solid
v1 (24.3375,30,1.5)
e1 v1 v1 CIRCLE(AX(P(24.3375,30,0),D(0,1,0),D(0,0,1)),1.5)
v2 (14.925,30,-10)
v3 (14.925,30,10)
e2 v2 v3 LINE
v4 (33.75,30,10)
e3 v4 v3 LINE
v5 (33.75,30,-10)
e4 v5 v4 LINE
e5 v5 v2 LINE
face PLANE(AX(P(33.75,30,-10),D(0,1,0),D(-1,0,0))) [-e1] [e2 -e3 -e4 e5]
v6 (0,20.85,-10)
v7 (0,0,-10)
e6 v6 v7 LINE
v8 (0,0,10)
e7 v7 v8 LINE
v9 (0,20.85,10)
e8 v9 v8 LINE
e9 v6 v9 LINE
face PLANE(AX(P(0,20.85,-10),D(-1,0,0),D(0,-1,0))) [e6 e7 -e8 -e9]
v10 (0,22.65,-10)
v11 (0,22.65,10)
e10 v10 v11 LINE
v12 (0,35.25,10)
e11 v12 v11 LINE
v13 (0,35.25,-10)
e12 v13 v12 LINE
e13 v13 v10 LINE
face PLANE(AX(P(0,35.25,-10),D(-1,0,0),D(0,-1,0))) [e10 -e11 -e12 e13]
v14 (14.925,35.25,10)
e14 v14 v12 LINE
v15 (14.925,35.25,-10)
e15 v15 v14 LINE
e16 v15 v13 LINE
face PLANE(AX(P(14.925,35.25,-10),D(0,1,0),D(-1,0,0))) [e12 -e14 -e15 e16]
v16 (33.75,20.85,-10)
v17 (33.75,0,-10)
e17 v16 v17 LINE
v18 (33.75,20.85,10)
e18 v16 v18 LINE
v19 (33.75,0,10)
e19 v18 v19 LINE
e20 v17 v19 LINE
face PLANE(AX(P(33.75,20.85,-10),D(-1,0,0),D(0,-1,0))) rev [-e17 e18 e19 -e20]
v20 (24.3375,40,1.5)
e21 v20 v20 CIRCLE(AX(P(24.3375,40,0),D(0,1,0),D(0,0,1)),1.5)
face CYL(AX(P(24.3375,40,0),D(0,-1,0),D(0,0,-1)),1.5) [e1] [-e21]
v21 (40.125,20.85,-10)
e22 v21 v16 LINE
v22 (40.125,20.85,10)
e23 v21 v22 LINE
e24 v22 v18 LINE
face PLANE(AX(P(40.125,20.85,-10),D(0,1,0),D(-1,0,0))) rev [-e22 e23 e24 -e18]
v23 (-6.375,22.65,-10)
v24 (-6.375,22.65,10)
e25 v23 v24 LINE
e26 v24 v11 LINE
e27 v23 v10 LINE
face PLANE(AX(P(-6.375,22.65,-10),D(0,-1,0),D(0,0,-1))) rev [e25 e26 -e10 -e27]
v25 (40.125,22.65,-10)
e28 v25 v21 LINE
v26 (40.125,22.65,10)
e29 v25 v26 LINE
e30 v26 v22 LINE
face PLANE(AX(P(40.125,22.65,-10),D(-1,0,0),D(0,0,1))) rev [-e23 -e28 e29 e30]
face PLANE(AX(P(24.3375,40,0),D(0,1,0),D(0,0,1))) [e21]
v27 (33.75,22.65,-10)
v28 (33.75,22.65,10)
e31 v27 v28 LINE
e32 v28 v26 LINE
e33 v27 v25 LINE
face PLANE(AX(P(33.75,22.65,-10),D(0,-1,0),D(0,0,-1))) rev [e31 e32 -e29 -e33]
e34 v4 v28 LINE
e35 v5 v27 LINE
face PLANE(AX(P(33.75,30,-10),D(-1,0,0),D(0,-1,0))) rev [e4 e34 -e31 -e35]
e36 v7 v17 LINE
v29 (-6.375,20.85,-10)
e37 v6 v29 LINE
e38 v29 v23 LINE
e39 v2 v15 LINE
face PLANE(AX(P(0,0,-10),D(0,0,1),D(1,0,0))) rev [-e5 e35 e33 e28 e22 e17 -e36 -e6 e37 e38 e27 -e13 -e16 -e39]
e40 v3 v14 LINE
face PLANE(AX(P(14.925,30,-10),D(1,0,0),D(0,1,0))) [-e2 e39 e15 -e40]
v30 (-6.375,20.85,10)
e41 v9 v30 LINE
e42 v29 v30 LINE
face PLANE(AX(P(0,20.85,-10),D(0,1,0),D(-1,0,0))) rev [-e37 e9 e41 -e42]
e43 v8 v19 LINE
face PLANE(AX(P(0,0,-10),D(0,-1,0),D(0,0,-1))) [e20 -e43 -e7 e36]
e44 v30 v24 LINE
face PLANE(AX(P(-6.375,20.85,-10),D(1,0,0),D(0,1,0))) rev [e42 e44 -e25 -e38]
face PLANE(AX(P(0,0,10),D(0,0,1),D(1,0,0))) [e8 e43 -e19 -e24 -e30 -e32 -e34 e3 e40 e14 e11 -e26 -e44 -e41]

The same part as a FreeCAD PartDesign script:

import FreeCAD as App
import Part
import Sketcher
from FreeCAD import Vector

doc = App.newDocument("Part")
params = doc.addObject("Spreadsheet::Sheet", "Params")
for row, (alias, value) in enumerate([
    ("sketch1_height", "1.8 mm"),
    ("sketch1_height2", "12.6 mm"),
    ("sketch1_width", "33.75 mm"),
    ("sketch1_height3", "20.85 mm"),
    ("pad1_length", "10 mm"),
    ("pad1_length2", "10 mm"),
    ("sketch2_diameter", "3 mm"),
    ("pad2_length", "10 mm"),
], start=1):
    params.set(f"A{row}", alias)
    params.set(f"B{row}", "=" + value)
    params.setAlias(f"B{row}", alias)

body = doc.addObject("PartDesign::Body", "Body")

# Sketch on XY plane
sketch1 = body.newObject("Sketcher::SketchObject", "Sketch")
sketch1.AttachmentSupport = (doc.getObject("XY_Plane"), [""])
sketch1.MapMode = "FlatFace"
sketch1.addGeometry([
    Part.LineSegment(Vector(0, 0, 0), Vector(33.8, 0, 0)),  # 0
    Part.LineSegment(Vector(33.8, 0, 0), Vector(33.8, 20.9, 0)),  # 1
    Part.LineSegment(Vector(33.8, 20.9, 0), Vector(40.1, 20.9, 0)),  # 2
    Part.LineSegment(Vector(40.1, 20.9, 0), Vector(40.1, 22.6, 0)),  # 3
    Part.LineSegment(Vector(40.1, 22.6, 0), Vector(33.8, 22.6, 0)),  # 4
    Part.LineSegment(Vector(33.8, 22.6, 0), Vector(33.8, 30, 0)),  # 5
    Part.LineSegment(Vector(33.8, 30, 0), Vector(14.9, 30, 0)),  # 6
    Part.LineSegment(Vector(14.9, 30, 0), Vector(14.9, 35.2, 0)),  # 7
    Part.LineSegment(Vector(14.9, 35.2, 0), Vector(0, 35.2, 0)),  # 8
    Part.LineSegment(Vector(0, 35.2, 0), Vector(0, 22.6, 0)),  # 9
    Part.LineSegment(Vector(0, 22.6, 0), Vector(-6.4, 22.6, 0)),  # 10
    Part.LineSegment(Vector(-6.4, 22.6, 0), Vector(-6.4, 20.9, 0)),  # 11
    Part.LineSegment(Vector(-6.4, 20.9, 0), Vector(0, 20.9, 0)),  # 12
    Part.LineSegment(Vector(0, 20.9, 0), Vector(0, 0, 0)),  # 13
], False)
sketch1.addConstraint([
    Sketcher.Constraint("Coincident", 0, 2, 1, 1),
    Sketcher.Constraint("Coincident", 1, 2, 2, 1),
    Sketcher.Constraint("Coincident", 2, 2, 3, 1),
    Sketcher.Constraint("Coincident", 3, 2, 4, 1),
    Sketcher.Constraint("Coincident", 4, 2, 5, 1),
    Sketcher.Constraint("Coincident", 5, 2, 6, 1),
    Sketcher.Constraint("Coincident", 6, 2, 7, 1),
    Sketcher.Constraint("Coincident", 7, 2, 8, 1),
    Sketcher.Constraint("Coincident", 8, 2, 9, 1),
    Sketcher.Constraint("Coincident", 9, 2, 10, 1),
    Sketcher.Constraint("Coincident", 10, 2, 11, 1),
    Sketcher.Constraint("Coincident", 11, 2, 12, 1),
    Sketcher.Constraint("Coincident", 12, 2, 13, 1),
    Sketcher.Constraint("Coincident", 13, 2, 0, 1),
    Sketcher.Constraint("Horizontal", 0),
    Sketcher.Constraint("Vertical", 1),
    Sketcher.Constraint("Horizontal", 2),
    Sketcher.Constraint("Vertical", 3),
    Sketcher.Constraint("Horizontal", 4),
    Sketcher.Constraint("Vertical", 5),
    Sketcher.Constraint("Horizontal", 6),
    Sketcher.Constraint("Vertical", 7),
    Sketcher.Constraint("Horizontal", 8),
    Sketcher.Constraint("Vertical", 9),
    Sketcher.Constraint("Horizontal", 10),
    Sketcher.Constraint("Vertical", 11),
    Sketcher.Constraint("Horizontal", 12),
    Sketcher.Constraint("Vertical", 13),
    Sketcher.Constraint("Coincident", 13, 2, -1, 1),
    Sketcher.Constraint("PointOnObject", 8, 2, -2),
    Sketcher.Constraint("Horizontal", 4, 2, 9, 2),
    Sketcher.Constraint("Horizontal", 2, 2, 11, 2),
    Sketcher.Constraint("Vertical", 1, 2, 4, 2),
    Sketcher.Constraint("Equal", 4, 10),
    Sketcher.Constraint("DistanceY", 3, 1, 3, 2, 1.8),
    Sketcher.Constraint("DistanceY", 9, 2, 9, 1, 12.6),
    Sketcher.Constraint("DistanceY", -1, 1, 5, 2, 30.0),
    Sketcher.Constraint("DistanceX", 0, 1, 0, 2, 33.75),
    Sketcher.Constraint("DistanceY", 1, 1, 1, 2, 20.85),
    Sketcher.Constraint("DistanceX", 6, 2, 3, 2, 25.2),
    Sketcher.Constraint("DistanceX", 10, 2, 6, 2, 21.3),
])
sketch1.setExpression("Constraints[34]", "Params.sketch1_height")
sketch1.setExpression("Constraints[35]", "Params.sketch1_height2")
sketch1.setExpression("Constraints[37]", "Params.sketch1_width")
sketch1.setExpression("Constraints[38]", "Params.sketch1_height3")
pad1 = body.newObject("PartDesign::Pad", "Pad")
pad1.Profile = sketch1
pad1.Type = "TwoLengths"
pad1.setExpression("Length", "Params.pad1_length")
pad1.setExpression("Length2", "Params.pad1_length2")

# Sketch on XZ plane
sketch2 = body.newObject("Sketcher::SketchObject", "Sketch001")
sketch2.AttachmentSupport = (doc.getObject("XZ_Plane"), [""])
sketch2.MapMode = "FlatFace"
sketch2.AttachmentOffset = App.Placement(Vector(0, 0, -30), App.Rotation())
sketch2.addGeometry(Part.Circle(Vector(24.3, 0, 0), Vector(0, 0, 1), 1.5), False)
sketch2.addConstraint([
    Sketcher.Constraint("PointOnObject", 0, 3, -1),
    Sketcher.Constraint("Diameter", 0, 3.0),
    Sketcher.Constraint("DistanceX", -1, 1, 0, 3, 24.3375),
])
sketch2.setExpression("Constraints[1]", "Params.sketch2_diameter")
pad2 = body.newObject("PartDesign::Pad", "Pad001")
pad2.Profile = sketch2
pad2.setExpression("Length", "Params.pad2_length")
pad2.Reversed = True

doc.recompute()
